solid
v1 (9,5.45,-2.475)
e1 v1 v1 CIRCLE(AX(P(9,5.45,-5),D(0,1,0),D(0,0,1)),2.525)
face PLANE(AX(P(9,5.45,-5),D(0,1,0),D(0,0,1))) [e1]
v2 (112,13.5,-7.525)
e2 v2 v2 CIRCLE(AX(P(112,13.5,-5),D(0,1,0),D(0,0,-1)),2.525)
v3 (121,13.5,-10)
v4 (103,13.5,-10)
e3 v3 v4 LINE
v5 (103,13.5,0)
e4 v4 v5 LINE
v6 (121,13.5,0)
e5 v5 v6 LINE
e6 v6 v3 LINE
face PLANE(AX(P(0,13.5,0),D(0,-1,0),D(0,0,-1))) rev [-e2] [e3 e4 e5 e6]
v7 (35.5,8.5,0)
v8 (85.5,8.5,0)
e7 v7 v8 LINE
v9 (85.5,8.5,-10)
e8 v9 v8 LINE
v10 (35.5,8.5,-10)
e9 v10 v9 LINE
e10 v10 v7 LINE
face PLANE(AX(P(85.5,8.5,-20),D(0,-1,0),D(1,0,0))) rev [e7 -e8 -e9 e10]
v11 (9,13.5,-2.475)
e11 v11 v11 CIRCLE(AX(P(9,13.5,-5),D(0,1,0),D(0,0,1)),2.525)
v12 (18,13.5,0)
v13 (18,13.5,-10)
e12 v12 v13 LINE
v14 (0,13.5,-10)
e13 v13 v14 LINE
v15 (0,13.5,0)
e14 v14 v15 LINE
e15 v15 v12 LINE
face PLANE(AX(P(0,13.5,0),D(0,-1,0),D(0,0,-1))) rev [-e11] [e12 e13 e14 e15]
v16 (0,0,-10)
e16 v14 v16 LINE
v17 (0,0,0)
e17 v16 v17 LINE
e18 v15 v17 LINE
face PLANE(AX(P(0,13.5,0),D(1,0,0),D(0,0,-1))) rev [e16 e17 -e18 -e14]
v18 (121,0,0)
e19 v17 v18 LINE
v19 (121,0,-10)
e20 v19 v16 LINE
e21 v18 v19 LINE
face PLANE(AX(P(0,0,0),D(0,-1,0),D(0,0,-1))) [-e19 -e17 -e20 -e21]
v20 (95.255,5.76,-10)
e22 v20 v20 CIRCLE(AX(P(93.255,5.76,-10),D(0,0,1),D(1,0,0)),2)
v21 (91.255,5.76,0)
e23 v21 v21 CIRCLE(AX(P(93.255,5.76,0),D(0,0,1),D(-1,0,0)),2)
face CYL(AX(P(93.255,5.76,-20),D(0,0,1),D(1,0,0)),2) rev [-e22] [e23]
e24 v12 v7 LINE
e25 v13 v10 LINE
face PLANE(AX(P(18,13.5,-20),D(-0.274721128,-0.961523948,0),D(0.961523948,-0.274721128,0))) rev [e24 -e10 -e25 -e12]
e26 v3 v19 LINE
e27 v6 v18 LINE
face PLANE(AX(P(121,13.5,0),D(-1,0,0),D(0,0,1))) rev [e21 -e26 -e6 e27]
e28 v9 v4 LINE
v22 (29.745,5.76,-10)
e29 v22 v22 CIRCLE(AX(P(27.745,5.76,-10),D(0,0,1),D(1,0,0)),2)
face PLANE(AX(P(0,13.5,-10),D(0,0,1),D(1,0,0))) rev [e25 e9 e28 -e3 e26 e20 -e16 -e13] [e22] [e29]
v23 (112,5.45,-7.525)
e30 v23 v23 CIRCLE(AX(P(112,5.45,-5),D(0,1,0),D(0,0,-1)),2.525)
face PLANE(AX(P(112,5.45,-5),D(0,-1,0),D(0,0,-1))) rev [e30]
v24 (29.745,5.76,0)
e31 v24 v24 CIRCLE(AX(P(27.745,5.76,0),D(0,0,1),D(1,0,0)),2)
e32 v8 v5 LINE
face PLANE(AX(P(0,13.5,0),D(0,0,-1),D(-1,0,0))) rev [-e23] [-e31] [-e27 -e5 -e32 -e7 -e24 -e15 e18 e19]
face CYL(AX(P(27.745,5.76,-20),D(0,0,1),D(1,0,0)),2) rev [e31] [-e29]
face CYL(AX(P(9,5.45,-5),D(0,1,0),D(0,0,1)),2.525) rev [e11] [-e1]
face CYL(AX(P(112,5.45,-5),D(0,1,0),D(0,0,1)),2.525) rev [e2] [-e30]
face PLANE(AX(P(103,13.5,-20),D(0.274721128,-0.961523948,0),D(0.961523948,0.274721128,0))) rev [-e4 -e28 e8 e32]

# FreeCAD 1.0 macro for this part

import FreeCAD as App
import Part
import Sketcher

doc = App.newDocument("Part")
body = doc.addObject("PartDesign::Body", "Body")

sketch1 = body.newObject("Sketcher::SketchObject", "Sketch")
sketch1.AttachmentSupport = (doc.getObject("XZ_Plane"), [""])
sketch1.MapMode = "FlatFace"
sketch1.addGeometry([
    Part.LineSegment(App.Vector(0, -10, 0), App.Vector(0, 0, 0)),
    Part.LineSegment(App.Vector(0, 0, 0), App.Vector(121, 0, 0)),
    Part.LineSegment(App.Vector(121, 0, 0), App.Vector(121, -10, 0)),
    Part.LineSegment(App.Vector(121, -10, 0), App.Vector(0, -10, 0)),
], False)
sketch1.addConstraint([
    Sketcher.Constraint("Coincident", 0, 2, 1, 1),
    Sketcher.Constraint("Coincident", 1, 2, 2, 1),
    Sketcher.Constraint("Coincident", 2, 2, 3, 1),
    Sketcher.Constraint("Coincident", 3, 2, 0, 1),
    Sketcher.Constraint("Vertical", 0),
    Sketcher.Constraint("Horizontal", 1),
    Sketcher.Constraint("Vertical", 2),
    Sketcher.Constraint("Horizontal", 3),
    Sketcher.Constraint("Coincident", 0, 2, -1, 1),
    Sketcher.Constraint("DistanceX", 1, 1, 1, 2, 121.0),
    Sketcher.Constraint("DistanceY", 0, 1, 0, 2, 10.0),
])
pad1 = body.newObject("PartDesign::Pad", "Pad")
pad1.Profile = sketch1
pad1.Length = 13.5
pad1.Reversed = True

sketch2 = body.newObject("Sketcher::SketchObject", "Sketch001")
sketch2.AttachmentSupport = (doc.getObject("XZ_Plane"), [""])
sketch2.MapMode = "FlatFace"
sketch2.AttachmentOffset = App.Placement(App.Vector(0, 0, -13.5), App.Rotation())
sketch2.addGeometry([
    Part.Circle(App.Vector(9, -5, 0), App.Vector(0, 0, 1), 2.525),
    Part.Circle(App.Vector(112, -5, 0), App.Vector(0, 0, 1), 2.525),
], False)
sketch2.addConstraint([
    Sketcher.Constraint("Equal", 0, 1),
    Sketcher.Constraint("Horizontal", 0, 3, 1, 3),
    Sketcher.Constraint("Diameter", 0, 5.05),
    Sketcher.Constraint("DistanceX", -1, 1, 0, 3, 9.0),
    Sketcher.Constraint("DistanceY", 0, 3, -1, 1, 5.0),
    Sketcher.Constraint("DistanceX", -1, 1, 1, 3, 112.0),
])
pocket1 = body.newObject("PartDesign::Pocket", "Pocket")
pocket1.Profile = sketch2
pocket1.Length = 8.05
pocket1.Reversed = True

sketch3 = body.newObject("Sketcher::SketchObject", "Sketch002")
sketch3.AttachmentSupport = (doc.getObject("XY_Plane"), [""])
sketch3.MapMode = "FlatFace"
sketch3.addGeometry([
    Part.LineSegment(App.Vector(103, 13.5, 0), App.Vector(18, 13.5, 0)),
    Part.LineSegment(App.Vector(18, 13.5, 0), App.Vector(35.5, 8.5, 0)),
    Part.LineSegment(App.Vector(35.5, 8.5, 0), App.Vector(85.5, 8.5, 0)),
    Part.LineSegment(App.Vector(85.5, 8.5, 0), App.Vector(103, 13.5, 0)),
], False)
sketch3.addConstraint([
    Sketcher.Constraint("Coincident", 0, 2, 1, 1),
    Sketcher.Constraint("Coincident", 1, 2, 2, 1),
    Sketcher.Constraint("Coincident", 2, 2, 3, 1),
    Sketcher.Constraint("Coincident", 3, 2, 0, 1),
    Sketcher.Constraint("Horizontal", 0),
    Sketcher.Constraint("Horizontal", 2),
    Sketcher.Constraint("Equal", 1, 3),
    Sketcher.Constraint("DistanceX", 0, 2, 0, 1, 85.0),
    Sketcher.Constraint("DistanceX", 2, 1, 2, 2, 50.0),
    Sketcher.Constraint("DistanceX", -1, 1, 0, 2, 18.0),
    Sketcher.Constraint("DistanceY", 1, 2, 0, 2, 5.0),
    Sketcher.Constraint("DistanceY", -1, 1, 0, 2, 13.5),
])
pocket2 = body.newObject("PartDesign::Pocket", "Pocket001")
pocket2.Profile = sketch3
pocket2.Length = 20

sketch4 = body.newObject("Sketcher::SketchObject", "Sketch003")
sketch4.AttachmentSupport = (doc.getObject("XY_Plane"), [""])
sketch4.MapMode = "FlatFace"
sketch4.addGeometry([
    Part.Circle(App.Vector(27.745, 5.76, 0), App.Vector(0, 0, 1), 2),
    Part.Circle(App.Vector(93.255, 5.76, 0), App.Vector(0, 0, 1), 2),
], False)
sketch4.addConstraint([
    Sketcher.Constraint("Equal", 0, 1),
    Sketcher.Constraint("Horizontal", 0, 3, 1, 3),
    Sketcher.Constraint("Diameter", 0, 4.0),
    Sketcher.Constraint("DistanceY", -1, 1, 0, 3, 5.76),
    Sketcher.Constraint("DistanceX", 0, 3, 1, 3, 65.51),
    Sketcher.Constraint("DistanceX", -1, 1, 0, 3, 27.745),
])
pocket3 = body.newObject("PartDesign::Pocket", "Pocket002")
pocket3.Profile = sketch4
pocket3.Length = 20

doc.recompute()
